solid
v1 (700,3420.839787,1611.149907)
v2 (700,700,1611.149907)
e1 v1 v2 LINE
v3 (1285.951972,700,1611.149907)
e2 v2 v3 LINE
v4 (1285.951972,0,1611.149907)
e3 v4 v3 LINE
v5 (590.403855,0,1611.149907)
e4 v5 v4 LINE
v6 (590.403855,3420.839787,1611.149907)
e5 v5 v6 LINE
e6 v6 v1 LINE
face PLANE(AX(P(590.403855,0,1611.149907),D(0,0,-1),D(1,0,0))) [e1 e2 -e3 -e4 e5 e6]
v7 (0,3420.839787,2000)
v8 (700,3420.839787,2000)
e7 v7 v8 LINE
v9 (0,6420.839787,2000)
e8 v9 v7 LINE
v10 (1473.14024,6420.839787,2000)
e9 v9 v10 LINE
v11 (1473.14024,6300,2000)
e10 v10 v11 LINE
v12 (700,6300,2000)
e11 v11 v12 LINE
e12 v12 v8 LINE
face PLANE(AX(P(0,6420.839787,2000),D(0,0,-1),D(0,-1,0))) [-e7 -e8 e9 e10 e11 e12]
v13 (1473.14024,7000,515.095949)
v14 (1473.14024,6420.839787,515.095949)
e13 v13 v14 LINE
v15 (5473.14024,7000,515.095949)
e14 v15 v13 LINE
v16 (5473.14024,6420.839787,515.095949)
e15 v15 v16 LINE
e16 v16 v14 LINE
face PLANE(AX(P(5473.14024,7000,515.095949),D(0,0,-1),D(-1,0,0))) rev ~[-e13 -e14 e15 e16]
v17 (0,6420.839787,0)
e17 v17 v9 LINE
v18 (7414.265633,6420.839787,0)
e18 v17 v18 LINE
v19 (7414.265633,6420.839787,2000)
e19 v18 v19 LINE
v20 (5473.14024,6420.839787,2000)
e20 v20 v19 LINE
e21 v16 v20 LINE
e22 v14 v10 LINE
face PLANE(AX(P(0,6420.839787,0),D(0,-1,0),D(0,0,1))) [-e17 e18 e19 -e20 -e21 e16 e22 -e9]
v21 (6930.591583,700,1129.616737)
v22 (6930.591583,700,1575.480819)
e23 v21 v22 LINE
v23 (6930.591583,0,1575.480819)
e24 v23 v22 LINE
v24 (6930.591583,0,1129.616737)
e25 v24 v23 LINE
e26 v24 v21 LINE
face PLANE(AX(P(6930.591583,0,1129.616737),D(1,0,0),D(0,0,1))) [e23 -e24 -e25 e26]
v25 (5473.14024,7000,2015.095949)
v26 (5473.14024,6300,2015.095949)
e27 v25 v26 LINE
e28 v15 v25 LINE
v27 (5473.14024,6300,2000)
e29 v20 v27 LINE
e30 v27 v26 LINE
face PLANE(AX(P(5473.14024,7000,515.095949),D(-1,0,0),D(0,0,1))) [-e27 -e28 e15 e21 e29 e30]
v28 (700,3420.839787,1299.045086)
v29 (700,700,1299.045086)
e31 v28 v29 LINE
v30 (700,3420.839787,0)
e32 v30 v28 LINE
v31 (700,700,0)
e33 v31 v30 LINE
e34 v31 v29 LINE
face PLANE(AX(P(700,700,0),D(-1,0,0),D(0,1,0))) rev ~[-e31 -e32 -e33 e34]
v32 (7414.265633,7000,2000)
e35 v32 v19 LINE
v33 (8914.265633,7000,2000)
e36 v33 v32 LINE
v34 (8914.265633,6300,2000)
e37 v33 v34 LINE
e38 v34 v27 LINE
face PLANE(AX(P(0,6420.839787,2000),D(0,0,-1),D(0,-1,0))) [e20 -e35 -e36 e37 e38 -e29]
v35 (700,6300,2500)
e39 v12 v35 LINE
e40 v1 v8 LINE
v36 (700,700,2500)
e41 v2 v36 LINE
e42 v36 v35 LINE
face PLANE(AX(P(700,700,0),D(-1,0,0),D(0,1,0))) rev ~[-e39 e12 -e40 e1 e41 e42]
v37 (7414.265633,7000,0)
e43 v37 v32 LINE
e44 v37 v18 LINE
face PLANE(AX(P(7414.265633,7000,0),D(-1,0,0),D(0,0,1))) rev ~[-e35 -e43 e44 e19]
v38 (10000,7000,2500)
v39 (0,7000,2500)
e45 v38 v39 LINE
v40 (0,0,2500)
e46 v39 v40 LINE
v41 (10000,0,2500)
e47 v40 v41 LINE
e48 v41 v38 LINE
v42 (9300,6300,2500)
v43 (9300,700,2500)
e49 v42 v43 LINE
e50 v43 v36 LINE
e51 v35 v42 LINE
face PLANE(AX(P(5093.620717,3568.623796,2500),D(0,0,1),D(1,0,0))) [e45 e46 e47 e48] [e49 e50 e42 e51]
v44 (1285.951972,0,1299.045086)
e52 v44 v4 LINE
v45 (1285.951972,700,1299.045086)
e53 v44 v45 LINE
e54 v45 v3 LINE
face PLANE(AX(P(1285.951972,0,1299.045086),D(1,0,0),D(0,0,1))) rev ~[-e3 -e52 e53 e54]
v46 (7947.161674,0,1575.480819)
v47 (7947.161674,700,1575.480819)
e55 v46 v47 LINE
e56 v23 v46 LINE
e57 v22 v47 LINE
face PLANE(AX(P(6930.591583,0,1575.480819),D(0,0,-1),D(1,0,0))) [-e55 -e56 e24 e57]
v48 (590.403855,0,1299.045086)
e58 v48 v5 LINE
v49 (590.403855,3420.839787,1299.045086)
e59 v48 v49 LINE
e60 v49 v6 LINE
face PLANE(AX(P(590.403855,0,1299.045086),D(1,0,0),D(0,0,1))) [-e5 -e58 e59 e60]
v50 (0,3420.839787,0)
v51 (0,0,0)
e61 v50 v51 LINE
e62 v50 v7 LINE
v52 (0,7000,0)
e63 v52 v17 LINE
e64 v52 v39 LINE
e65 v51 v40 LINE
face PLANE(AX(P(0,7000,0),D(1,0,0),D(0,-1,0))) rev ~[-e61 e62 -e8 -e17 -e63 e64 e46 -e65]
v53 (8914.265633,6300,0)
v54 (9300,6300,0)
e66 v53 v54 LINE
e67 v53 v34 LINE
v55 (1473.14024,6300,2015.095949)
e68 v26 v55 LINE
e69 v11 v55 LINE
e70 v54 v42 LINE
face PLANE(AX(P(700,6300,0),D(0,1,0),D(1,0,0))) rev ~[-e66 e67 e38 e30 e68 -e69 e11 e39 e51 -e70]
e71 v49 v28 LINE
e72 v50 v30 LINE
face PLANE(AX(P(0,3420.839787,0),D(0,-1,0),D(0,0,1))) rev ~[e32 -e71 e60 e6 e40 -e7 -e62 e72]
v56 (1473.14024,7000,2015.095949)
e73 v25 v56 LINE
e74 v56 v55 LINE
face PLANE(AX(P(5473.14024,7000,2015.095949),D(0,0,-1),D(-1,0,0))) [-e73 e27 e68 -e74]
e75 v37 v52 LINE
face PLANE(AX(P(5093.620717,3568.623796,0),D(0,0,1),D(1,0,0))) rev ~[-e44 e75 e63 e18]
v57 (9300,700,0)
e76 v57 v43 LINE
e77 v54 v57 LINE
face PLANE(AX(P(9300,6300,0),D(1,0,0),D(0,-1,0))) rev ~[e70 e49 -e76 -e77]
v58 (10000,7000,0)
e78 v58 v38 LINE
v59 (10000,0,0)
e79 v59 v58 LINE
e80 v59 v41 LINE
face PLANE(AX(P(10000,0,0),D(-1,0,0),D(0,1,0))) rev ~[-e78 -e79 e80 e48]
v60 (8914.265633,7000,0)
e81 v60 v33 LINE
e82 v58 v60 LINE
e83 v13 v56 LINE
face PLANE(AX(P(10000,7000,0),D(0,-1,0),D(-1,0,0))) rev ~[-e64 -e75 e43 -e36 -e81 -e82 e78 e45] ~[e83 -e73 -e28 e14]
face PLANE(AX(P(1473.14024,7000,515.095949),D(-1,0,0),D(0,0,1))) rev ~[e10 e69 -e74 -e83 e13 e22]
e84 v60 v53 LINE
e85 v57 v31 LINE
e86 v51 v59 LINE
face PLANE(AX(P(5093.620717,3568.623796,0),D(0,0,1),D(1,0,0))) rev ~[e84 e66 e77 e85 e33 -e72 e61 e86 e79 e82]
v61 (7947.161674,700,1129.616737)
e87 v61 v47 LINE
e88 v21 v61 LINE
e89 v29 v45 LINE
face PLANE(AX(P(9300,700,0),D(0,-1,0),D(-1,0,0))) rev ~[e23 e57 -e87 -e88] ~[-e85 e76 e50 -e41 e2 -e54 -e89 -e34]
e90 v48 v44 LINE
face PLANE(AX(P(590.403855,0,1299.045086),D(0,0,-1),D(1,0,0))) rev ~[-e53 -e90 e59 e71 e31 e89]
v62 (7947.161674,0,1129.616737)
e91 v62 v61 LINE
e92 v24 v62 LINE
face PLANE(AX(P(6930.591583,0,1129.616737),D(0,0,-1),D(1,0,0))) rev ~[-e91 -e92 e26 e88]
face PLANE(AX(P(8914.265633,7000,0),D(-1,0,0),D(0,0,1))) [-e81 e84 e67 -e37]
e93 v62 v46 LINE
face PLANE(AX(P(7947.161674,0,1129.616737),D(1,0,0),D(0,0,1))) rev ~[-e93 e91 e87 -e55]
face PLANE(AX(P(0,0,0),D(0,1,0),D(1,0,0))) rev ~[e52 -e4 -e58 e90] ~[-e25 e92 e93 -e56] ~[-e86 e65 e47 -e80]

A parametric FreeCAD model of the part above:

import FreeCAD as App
import Part
import Sketcher

V = App.Vector

doc = App.newDocument("Part")
params = doc.addObject("Spreadsheet::Sheet", "Params")
for row, (alias, value) in enumerate([
    ("sketch1_width", "10000 mm"),
    ("sketch1_width2", "8600 mm"),
    ("sketch1_height", "7000 mm"),
    ("sketch1_height2", "5600 mm"),
    ("pad1_length", "2500 mm"),
    ("sketch2_width", "1500 mm"),
    ("sketch2_width2", "4000 mm"),
    ("sketch2_height", "2000 mm"),
    ("pocket1_length", "700 mm"),
    ("sketch3_width", "3000 mm"),
    ("sketch3_height", "2000 mm"),
    ("pocket2_length", "7414.266633 mm"),
    ("pocket3_length", "3420.840787 mm"),
], start=1):
    params.set(f"A{row}", alias)
    params.set(f"B{row}", "=" + value)
    params.setAlias(f"B{row}", alias)

body = doc.addObject("PartDesign::Body", "Body")

sketch1 = body.newObject("Sketcher::SketchObject", "Sketch")
sketch1.AttachmentSupport = (doc.getObject("XY_Plane"), [""])
sketch1.MapMode = "FlatFace"
sketch1.addGeometry(Part.LineSegment(V(0, 7000, 0), V(0, 0, 0)), False)
sketch1.addGeometry(Part.LineSegment(V(0, 0, 0), V(10000, 0, 0)), False)
sketch1.addGeometry(Part.LineSegment(V(10000, 0, 0), V(10000, 7000, 0)), False)
sketch1.addGeometry(Part.LineSegment(V(10000, 7000, 0), V(0, 7000, 0)), False)
sketch1.addGeometry(Part.LineSegment(V(9300, 6300, 0), V(9300, 700, 0)), False)
sketch1.addGeometry(Part.LineSegment(V(9300, 700, 0), V(700, 700, 0)), False)
sketch1.addGeometry(Part.LineSegment(V(700, 700, 0), V(700, 6300, 0)), False)
sketch1.addGeometry(Part.LineSegment(V(700, 6300, 0), V(9300, 6300, 0)), False)
sketch1.addConstraint(Sketcher.Constraint("Coincident", 0, 2, 1, 1))
sketch1.addConstraint(Sketcher.Constraint("Coincident", 1, 2, 2, 1))
sketch1.addConstraint(Sketcher.Constraint("Coincident", 2, 2, 3, 1))
sketch1.addConstraint(Sketcher.Constraint("Coincident", 3, 2, 0, 1))
sketch1.addConstraint(Sketcher.Constraint("Coincident", 4, 2, 5, 1))
sketch1.addConstraint(Sketcher.Constraint("Coincident", 5, 2, 6, 1))
sketch1.addConstraint(Sketcher.Constraint("Coincident", 6, 2, 7, 1))
sketch1.addConstraint(Sketcher.Constraint("Coincident", 7, 2, 4, 1))
sketch1.addConstraint(Sketcher.Constraint("Vertical", 0))
sketch1.addConstraint(Sketcher.Constraint("Horizontal", 1))
sketch1.addConstraint(Sketcher.Constraint("Vertical", 2))
sketch1.addConstraint(Sketcher.Constraint("Horizontal", 3))
sketch1.addConstraint(Sketcher.Constraint("Vertical", 4))
sketch1.addConstraint(Sketcher.Constraint("Horizontal", 5))
sketch1.addConstraint(Sketcher.Constraint("Vertical", 6))
sketch1.addConstraint(Sketcher.Constraint("Horizontal", 7))
sketch1.addConstraint(Sketcher.Constraint("Coincident", 0, 2, -1, 1))
sketch1.addConstraint(Sketcher.Constraint("DistanceX", 1, 1, 1, 2, 10000.0))
sketch1.addConstraint(Sketcher.Constraint("DistanceX", 5, 2, 5, 1, 8600.0))
sketch1.addConstraint(Sketcher.Constraint("DistanceY", 0, 2, 0, 1, 7000.0))
sketch1.addConstraint(Sketcher.Constraint("DistanceY", 4, 2, 4, 1, 5600.0))
sketch1.addConstraint(Sketcher.Constraint("DistanceX", -1, 1, 4, 2, 9300.0))
sketch1.addConstraint(Sketcher.Constraint("DistanceY", -1, 1, 4, 2, 700.0))
sketch1.setExpression("Constraints[17]", "Params.sketch1_width")
sketch1.setExpression("Constraints[18]", "Params.sketch1_width2")
sketch1.setExpression("Constraints[19]", "Params.sketch1_height")
sketch1.setExpression("Constraints[20]", "Params.sketch1_height2")
pad1 = body.newObject("PartDesign::Pad", "Pad")
pad1.Profile = sketch1
pad1.setExpression("Length", "Params.pad1_length")

sketch2 = body.newObject("Sketcher::SketchObject", "Sketch001")
sketch2.AttachmentSupport = (doc.getObject("XZ_Plane"), [""])
sketch2.MapMode = "FlatFace"
sketch2.AttachmentOffset = App.Placement(V(0, 0, -7000), App.Rotation())
sketch2.addGeometry(Part.LineSegment(V(8914, 2000, 0), V(8914, 0, 0)), False)
sketch2.addGeometry(Part.LineSegment(V(8914, 0, 0), V(7414, 0, 0)), False)
sketch2.addGeometry(Part.LineSegment(V(7414, 0, 0), V(7414, 2000, 0)), False)
sketch2.addGeometry(Part.LineSegment(V(7414, 2000, 0), V(8914, 2000, 0)), False)
sketch2.addGeometry(Part.LineSegment(V(5473, 2015, 0), V(5473, 515, 0)), False)
sketch2.addGeometry(Part.LineSegment(V(5473, 515, 0), V(1473, 515, 0)), False)
sketch2.addGeometry(Part.LineSegment(V(1473, 515, 0), V(1473, 2015, 0)), False)
sketch2.addGeometry(Part.LineSegment(V(1473, 2015, 0), V(5473, 2015, 0)), False)
sketch2.addConstraint(Sketcher.Constraint("Coincident", 0, 2, 1, 1))
sketch2.addConstraint(Sketcher.Constraint("Coincident", 1, 2, 2, 1))
sketch2.addConstraint(Sketcher.Constraint("Coincident", 2, 2, 3, 1))
sketch2.addConstraint(Sketcher.Constraint("Coincident", 3, 2, 0, 1))
sketch2.addConstraint(Sketcher.Constraint("Coincident", 4, 2, 5, 1))
sketch2.addConstraint(Sketcher.Constraint("Coincident", 5, 2, 6, 1))
sketch2.addConstraint(Sketcher.Constraint("Coincident", 6, 2, 7, 1))
sketch2.addConstraint(Sketcher.Constraint("Coincident", 7, 2, 4, 1))
sketch2.addConstraint(Sketcher.Constraint("Vertical", 0))
sketch2.addConstraint(Sketcher.Constraint("Horizontal", 1))
sketch2.addConstraint(Sketcher.Constraint("Vertical", 2))
sketch2.addConstraint(Sketcher.Constraint("Horizontal", 3))
sketch2.addConstraint(Sketcher.Constraint("Vertical", 4))
sketch2.addConstraint(Sketcher.Constraint("Horizontal", 5))
sketch2.addConstraint(Sketcher.Constraint("Vertical", 6))
sketch2.addConstraint(Sketcher.Constraint("Horizontal", 7))
sketch2.addConstraint(Sketcher.Constraint("PointOnObject", 0, 2, -1))
sketch2.addConstraint(Sketcher.Constraint("Equal", 3, 4))
sketch2.addConstraint(Sketcher.Constraint("DistanceX", 1, 2, 1, 1, 1500.0))
sketch2.addConstraint(Sketcher.Constraint("DistanceX", 5, 2, 5, 1, 4000.0))
sketch2.addConstraint(Sketcher.Constraint("DistanceY", 0, 2, 0, 1, 2000.0))
sketch2.addConstraint(Sketcher.Constraint("DistanceX", -1, 1, 4, 2, 5473.14024))
sketch2.addConstraint(Sketcher.Constraint("DistanceY", -1, 1, 4, 2, 515.095949))
sketch2.addConstraint(Sketcher.Constraint("DistanceX", -1, 1, 0, 2, 8914.265633))
sketch2.setExpression("Constraints[18]", "Params.sketch2_width")
sketch2.setExpression("Constraints[19]", "Params.sketch2_width2")
sketch2.setExpression("Constraints[20]", "Params.sketch2_height")
pocket1 = body.newObject("PartDesign::Pocket", "Pocket")
pocket1.Profile = sketch2
pocket1.setExpression("Length", "Params.pocket1_length")
pocket1.Reversed = True

sketch3 = body.newObject("Sketcher::SketchObject", "Sketch002")
sketch3.AttachmentSupport = (doc.getObject("YZ_Plane"), [""])
sketch3.MapMode = "FlatFace"
sketch3.addGeometry(Part.LineSegment(V(6421, 2000, 0), V(6421, 0, 0)), False)
sketch3.addGeometry(Part.LineSegment(V(6421, 0, 0), V(3421, 0, 0)), False)
sketch3.addGeometry(Part.LineSegment(V(3421, 0, 0), V(3421, 2000, 0)), False)
sketch3.addGeometry(Part.LineSegment(V(3421, 2000, 0), V(6421, 2000, 0)), False)
sketch3.addConstraint(Sketcher.Constraint("Coincident", 0, 2, 1, 1))
sketch3.addConstraint(Sketcher.Constraint("Coincident", 1, 2, 2, 1))
sketch3.addConstraint(Sketcher.Constraint("Coincident", 2, 2, 3, 1))
sketch3.addConstraint(Sketcher.Constraint("Coincident", 3, 2, 0, 1))
sketch3.addConstraint(Sketcher.Constraint("Vertical", 0))
sketch3.addConstraint(Sketcher.Constraint("Horizontal", 1))
sketch3.addConstraint(Sketcher.Constraint("Vertical", 2))
sketch3.addConstraint(Sketcher.Constraint("Horizontal", 3))
sketch3.addConstraint(Sketcher.Constraint("PointOnObject", 0, 2, -1))
sketch3.addConstraint(Sketcher.Constraint("DistanceX", 1, 2, 1, 1, 3000.0))
sketch3.addConstraint(Sketcher.Constraint("DistanceY", 0, 2, 0, 1, 2000.0))
sketch3.addConstraint(Sketcher.Constraint("DistanceX", -1, 1, 0, 2, 6420.839787))
sketch3.setExpression("Constraints[9]", "Params.sketch3_width")
sketch3.setExpression("Constraints[10]", "Params.sketch3_height")
pocket2 = body.newObject("PartDesign::Pocket", "Pocket001")
pocket2.Profile = sketch3
pocket2.setExpression("Length", "Params.pocket2_length")
pocket2.Reversed = True

sketch4 = body.newObject("Sketcher::SketchObject", "Sketch003")
sketch4.AttachmentSupport = (doc.getObject("XZ_Plane"), [""])
sketch4.MapMode = "FlatFace"
sketch4.addGeometry(Part.LineSegment(V(590, 1611, 0), V(590, 1299, 0)), False)
sketch4.addGeometry(Part.LineSegment(V(590, 1299, 0), V(1286, 1299, 0)), False)
sketch4.addGeometry(Part.LineSegment(V(1286, 1299, 0), V(1286, 1611, 0)), False)
sketch4.addGeometry(Part.LineSegment(V(1286, 1611, 0), V(590, 1611, 0)), False)
sketch4.addGeometry(Part.LineSegment(V(6931, 1575, 0), V(6931, 1130, 0)), False)
sketch4.addGeometry(Part.LineSegment(V(6931, 1130, 0), V(7947, 1130, 0)), False)
sketch4.addGeometry(Part.LineSegment(V(7947, 1130, 0), V(7947, 1575, 0)), False)
sketch4.addGeometry(Part.LineSegment(V(7947, 1575, 0), V(6931, 1575, 0)), False)
sketch4.addConstraint(Sketcher.Constraint("Coincident", 0, 2, 1, 1))
sketch4.addConstraint(Sketcher.Constraint("Coincident", 1, 2, 2, 1))
sketch4.addConstraint(Sketcher.Constraint("Coincident", 2, 2, 3, 1))
sketch4.addConstraint(Sketcher.Constraint("Coincident", 3, 2, 0, 1))
sketch4.addConstraint(Sketcher.Constraint("Coincident", 4, 2, 5, 1))
sketch4.addConstraint(Sketcher.Constraint("Coincident", 5, 2, 6, 1))
sketch4.addConstraint(Sketcher.Constraint("Coincident", 6, 2, 7, 1))
sketch4.addConstraint(Sketcher.Constraint("Coincident", 7, 2, 4, 1))
sketch4.addConstraint(Sketcher.Constraint("Vertical", 0))
sketch4.addConstraint(Sketcher.Constraint("Horizontal", 1))
sketch4.addConstraint(Sketcher.Constraint("Vertical", 2))
sketch4.addConstraint(Sketcher.Constraint("Horizontal", 3))
sketch4.addConstraint(Sketcher.Constraint("Vertical", 4))
sketch4.addConstraint(Sketcher.Constraint("Horizontal", 5))
sketch4.addConstraint(Sketcher.Constraint("Vertical", 6))
sketch4.addConstraint(Sketcher.Constraint("Horizontal", 7))
sketch4.addConstraint(Sketcher.Constraint("DistanceX", 5, 1, 5, 2, 1016.570091))
sketch4.addConstraint(Sketcher.Constraint("DistanceY", 0, 2, 0, 1, 312.104821))
sketch4.addConstraint(Sketcher.Constraint("DistanceY", 4, 2, 4, 1, 445.864081))
sketch4.addConstraint(Sketcher.Constraint("DistanceX", 1, 1, 1, 2, 695.548117))
sketch4.addConstraint(Sketcher.Constraint("DistanceY", -1, 1, 6, 2, 1575.480819))
sketch4.addConstraint(Sketcher.Constraint("DistanceX", 1, 2, 4, 2, 5644.639611))
sketch4.addConstraint(Sketcher.Constraint("DistanceY", 4, 2, 1, 2, 169.428349))
sketch4.addConstraint(Sketcher.Constraint("DistanceX", -1, 1, 0, 2, 590.403855))
pocket3 = body.newObject("PartDesign::Pocket", "Pocket002")
pocket3.Profile = sketch4
pocket3.setExpression("Length", "Params.pocket3_length")

doc.recompute()
